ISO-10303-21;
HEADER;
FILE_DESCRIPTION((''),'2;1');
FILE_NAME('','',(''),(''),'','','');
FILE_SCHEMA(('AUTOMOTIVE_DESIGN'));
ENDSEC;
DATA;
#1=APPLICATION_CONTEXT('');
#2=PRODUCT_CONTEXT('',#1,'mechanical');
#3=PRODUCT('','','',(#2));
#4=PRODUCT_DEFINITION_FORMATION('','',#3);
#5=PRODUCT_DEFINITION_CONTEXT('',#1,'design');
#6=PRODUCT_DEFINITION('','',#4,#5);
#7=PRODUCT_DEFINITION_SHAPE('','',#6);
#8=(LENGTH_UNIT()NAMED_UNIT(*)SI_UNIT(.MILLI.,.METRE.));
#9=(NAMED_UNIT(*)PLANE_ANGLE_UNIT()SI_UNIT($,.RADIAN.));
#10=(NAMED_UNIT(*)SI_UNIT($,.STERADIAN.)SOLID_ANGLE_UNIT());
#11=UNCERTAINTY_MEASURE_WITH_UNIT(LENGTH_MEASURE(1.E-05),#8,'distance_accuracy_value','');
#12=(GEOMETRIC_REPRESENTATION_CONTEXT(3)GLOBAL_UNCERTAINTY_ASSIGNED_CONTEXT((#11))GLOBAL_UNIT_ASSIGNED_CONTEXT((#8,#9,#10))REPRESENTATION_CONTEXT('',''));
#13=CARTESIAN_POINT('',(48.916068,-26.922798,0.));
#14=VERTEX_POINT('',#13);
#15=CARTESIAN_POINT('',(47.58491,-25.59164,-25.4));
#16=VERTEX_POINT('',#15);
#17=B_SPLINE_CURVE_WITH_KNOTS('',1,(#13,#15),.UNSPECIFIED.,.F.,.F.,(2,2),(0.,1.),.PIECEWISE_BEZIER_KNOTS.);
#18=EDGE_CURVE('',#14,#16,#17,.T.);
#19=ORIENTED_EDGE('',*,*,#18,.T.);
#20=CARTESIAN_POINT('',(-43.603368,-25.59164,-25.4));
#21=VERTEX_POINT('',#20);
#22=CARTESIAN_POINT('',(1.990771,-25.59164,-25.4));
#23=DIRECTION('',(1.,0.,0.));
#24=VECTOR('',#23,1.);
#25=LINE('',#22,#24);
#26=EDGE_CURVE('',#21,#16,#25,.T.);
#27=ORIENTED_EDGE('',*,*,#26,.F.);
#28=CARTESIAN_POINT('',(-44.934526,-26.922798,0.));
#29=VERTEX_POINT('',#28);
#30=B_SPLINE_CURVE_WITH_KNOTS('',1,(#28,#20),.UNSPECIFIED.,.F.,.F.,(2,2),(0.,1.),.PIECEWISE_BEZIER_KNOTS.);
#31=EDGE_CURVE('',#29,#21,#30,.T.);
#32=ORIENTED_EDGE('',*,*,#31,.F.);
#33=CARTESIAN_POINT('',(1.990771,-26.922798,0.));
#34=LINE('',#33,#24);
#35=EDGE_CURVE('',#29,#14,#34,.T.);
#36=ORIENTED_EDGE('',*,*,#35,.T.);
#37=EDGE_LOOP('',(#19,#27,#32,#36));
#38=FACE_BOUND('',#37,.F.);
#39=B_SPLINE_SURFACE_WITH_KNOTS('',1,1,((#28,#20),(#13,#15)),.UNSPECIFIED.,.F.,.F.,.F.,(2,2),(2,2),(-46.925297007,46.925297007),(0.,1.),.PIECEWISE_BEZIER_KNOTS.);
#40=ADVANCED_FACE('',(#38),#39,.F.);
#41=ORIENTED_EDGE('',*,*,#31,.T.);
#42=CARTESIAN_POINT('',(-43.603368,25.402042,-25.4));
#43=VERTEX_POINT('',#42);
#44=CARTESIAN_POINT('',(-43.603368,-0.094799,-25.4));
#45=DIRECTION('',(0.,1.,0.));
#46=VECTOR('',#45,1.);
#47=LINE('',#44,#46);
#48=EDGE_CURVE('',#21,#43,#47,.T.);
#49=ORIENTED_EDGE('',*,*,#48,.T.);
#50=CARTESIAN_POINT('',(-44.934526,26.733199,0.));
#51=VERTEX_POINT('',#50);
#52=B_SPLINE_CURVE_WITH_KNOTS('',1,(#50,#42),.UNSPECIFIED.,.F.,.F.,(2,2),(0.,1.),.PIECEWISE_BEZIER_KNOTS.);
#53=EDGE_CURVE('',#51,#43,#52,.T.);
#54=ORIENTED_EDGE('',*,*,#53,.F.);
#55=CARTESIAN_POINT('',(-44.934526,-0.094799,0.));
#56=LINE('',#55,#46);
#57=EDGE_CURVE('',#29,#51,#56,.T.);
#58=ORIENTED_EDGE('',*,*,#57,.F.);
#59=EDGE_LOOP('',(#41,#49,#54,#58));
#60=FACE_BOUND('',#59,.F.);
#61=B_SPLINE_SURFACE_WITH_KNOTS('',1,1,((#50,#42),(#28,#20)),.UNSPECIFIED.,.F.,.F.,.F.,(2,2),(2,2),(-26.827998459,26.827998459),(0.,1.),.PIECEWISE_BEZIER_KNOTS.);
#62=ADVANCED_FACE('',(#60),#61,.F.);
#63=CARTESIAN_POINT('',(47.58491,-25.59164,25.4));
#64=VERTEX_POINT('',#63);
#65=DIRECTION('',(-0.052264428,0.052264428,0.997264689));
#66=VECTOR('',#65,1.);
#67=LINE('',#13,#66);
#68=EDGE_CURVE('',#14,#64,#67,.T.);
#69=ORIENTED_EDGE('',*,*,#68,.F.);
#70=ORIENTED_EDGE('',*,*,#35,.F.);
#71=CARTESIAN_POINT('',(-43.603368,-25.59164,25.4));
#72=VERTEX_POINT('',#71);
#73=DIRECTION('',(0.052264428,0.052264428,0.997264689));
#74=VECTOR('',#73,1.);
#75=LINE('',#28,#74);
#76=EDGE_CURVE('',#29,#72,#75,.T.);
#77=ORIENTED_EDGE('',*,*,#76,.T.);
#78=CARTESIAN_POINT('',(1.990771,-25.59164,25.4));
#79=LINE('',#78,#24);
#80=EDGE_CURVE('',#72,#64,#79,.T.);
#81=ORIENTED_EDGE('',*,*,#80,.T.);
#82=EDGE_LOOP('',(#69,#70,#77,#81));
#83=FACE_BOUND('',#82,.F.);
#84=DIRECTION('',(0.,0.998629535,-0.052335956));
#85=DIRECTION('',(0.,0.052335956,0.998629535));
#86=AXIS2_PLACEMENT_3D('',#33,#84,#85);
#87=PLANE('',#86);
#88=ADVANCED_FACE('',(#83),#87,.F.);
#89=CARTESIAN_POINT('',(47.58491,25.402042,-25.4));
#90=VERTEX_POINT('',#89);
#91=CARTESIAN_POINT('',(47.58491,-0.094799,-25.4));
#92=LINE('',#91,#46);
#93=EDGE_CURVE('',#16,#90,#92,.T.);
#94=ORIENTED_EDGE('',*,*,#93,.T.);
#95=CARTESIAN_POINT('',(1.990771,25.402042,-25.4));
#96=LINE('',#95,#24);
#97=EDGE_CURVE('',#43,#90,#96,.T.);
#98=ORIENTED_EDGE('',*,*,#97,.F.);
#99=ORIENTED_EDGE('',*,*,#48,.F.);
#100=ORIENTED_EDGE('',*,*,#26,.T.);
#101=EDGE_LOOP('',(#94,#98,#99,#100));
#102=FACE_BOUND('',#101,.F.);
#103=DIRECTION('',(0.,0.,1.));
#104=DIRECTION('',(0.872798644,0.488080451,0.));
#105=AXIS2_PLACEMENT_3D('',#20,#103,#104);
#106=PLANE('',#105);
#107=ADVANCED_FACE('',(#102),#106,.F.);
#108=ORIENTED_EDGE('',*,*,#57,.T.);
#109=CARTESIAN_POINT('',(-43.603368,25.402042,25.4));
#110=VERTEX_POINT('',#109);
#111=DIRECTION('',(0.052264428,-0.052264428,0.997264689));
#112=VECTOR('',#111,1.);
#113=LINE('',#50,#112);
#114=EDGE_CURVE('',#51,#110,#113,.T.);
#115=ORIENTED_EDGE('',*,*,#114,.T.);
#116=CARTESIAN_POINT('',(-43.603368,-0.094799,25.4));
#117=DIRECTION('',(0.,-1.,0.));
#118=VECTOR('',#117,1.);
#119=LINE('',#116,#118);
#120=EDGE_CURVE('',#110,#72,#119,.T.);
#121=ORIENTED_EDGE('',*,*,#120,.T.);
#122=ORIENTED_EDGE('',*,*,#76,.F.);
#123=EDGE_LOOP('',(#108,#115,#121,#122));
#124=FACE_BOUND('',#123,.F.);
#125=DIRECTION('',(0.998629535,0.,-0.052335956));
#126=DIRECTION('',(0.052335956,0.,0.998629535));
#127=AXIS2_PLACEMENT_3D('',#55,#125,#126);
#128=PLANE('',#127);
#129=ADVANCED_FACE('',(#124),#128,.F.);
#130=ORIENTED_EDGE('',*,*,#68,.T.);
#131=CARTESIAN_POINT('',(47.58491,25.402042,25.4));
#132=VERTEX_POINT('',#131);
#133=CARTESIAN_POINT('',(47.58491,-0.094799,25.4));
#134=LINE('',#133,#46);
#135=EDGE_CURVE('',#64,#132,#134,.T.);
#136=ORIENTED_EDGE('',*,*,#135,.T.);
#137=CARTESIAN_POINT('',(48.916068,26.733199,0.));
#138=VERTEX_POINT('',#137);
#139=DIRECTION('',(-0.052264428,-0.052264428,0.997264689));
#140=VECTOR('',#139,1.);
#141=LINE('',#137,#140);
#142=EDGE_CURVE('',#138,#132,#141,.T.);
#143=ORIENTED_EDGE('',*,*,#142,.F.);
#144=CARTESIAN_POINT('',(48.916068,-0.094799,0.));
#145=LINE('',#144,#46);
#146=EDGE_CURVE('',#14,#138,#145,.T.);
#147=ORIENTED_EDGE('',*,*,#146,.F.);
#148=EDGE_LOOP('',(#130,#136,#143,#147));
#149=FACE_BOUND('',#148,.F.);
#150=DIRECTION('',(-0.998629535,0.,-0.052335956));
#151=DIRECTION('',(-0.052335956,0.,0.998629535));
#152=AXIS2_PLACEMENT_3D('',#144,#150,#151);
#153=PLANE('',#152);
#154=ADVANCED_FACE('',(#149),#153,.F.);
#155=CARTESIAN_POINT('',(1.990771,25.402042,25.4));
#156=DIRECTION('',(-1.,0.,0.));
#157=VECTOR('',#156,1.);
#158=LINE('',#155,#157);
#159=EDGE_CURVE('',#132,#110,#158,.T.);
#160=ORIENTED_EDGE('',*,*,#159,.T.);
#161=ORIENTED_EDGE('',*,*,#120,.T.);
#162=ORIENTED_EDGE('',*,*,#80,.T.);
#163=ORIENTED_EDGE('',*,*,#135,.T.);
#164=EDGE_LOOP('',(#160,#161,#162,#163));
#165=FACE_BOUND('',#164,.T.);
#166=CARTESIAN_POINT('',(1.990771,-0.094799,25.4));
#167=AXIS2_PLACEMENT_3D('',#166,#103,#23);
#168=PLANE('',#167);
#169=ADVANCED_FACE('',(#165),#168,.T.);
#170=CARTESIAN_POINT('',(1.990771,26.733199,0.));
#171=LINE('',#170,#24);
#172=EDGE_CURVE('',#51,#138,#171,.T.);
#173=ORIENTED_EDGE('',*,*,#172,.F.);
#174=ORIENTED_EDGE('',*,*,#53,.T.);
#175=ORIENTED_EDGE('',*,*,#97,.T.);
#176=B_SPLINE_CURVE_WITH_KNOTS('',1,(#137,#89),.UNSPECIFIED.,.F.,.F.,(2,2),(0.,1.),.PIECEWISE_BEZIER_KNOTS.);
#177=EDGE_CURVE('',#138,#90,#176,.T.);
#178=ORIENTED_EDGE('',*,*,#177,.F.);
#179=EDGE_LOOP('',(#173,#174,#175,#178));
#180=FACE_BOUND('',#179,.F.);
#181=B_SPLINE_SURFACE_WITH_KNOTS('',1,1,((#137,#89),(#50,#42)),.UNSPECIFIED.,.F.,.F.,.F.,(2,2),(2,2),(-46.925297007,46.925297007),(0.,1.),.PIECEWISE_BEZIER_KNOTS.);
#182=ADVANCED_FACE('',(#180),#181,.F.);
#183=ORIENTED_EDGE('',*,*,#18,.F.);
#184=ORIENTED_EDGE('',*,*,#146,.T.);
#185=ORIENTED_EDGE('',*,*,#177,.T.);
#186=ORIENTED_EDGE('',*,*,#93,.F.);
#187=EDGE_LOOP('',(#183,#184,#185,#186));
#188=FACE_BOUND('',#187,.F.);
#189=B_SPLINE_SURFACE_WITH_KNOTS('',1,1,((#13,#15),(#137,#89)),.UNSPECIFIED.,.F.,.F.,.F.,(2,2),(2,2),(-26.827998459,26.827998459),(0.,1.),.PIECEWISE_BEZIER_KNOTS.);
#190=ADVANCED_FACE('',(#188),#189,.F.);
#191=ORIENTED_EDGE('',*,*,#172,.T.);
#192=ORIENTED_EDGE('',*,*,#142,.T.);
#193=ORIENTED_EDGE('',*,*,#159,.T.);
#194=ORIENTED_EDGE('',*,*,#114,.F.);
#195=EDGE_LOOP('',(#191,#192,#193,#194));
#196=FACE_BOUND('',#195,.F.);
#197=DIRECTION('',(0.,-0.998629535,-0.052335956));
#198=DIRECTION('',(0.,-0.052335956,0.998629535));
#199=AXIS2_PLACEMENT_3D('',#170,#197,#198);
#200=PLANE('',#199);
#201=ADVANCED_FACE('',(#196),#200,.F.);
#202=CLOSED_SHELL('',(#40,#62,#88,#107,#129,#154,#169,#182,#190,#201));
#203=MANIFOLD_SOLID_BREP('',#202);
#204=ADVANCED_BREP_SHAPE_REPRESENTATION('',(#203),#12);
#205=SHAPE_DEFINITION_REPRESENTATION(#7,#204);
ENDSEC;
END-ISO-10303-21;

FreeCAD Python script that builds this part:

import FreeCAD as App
import Part
import Sketcher
Q = App.Units.Quantity


def add_polygon(sketch, points):
    """Adds a closed chain of lines whose ends are joined by coincident constraints."""
    first, n = sketch.GeometryCount, len(points)
    for a, b in zip(points, points[1:] + points[:1]):
        sketch.addGeometry(Part.LineSegment(App.Vector(*a, 0), App.Vector(*b, 0)), False)
    for i in range(n):
        sketch.addConstraint(Sketcher.Constraint("Coincident", first + i, 2, first + (i + 1) % n, 1))

doc = App.newDocument("Part")
body = doc.addObject("PartDesign::Body", "Body")

# Sketch on XY plane
sketch1 = body.newObject("Sketcher::SketchObject", "Sketch")
sketch1.AttachmentSupport = (doc.getObject("XY_Plane"), [""])
sketch1.MapMode = "FlatFace"
add_polygon(sketch1, [(-45, 27), (-45, -27), (49, -27), (49, 27)])  # lines 0-3
sketch1.addConstraint(Sketcher.Constraint("Vertical", 0))
sketch1.addConstraint(Sketcher.Constraint("Horizontal", 1))
sketch1.addConstraint(Sketcher.Constraint("Vertical", 2))
sketch1.addConstraint(Sketcher.Constraint("Horizontal", 3))
sketch1.addConstraint(Sketcher.Constraint("DistanceY", -1, 1, 2, 2, Q("26.733199 mm")))
sketch1.addConstraint(Sketcher.Constraint("DistanceX", 1, 1, 1, 2, Q("93.850594 mm")))
sketch1.addConstraint(Sketcher.Constraint("DistanceY", 0, 2, 0, 1, Q("53.655997 mm")))
sketch1.addConstraint(Sketcher.Constraint("DistanceX", 0, 2, -1, 1, Q("44.934526 mm")))
pad1 = body.newObject("PartDesign::Pad", "Pad")
pad1.Profile = sketch1
pad1.Length = Q("1 in")
pad1.TaperAngle = -3
pad2 = body.newObject("PartDesign::Pad", "Pad001")
pad2.Profile = sketch1
pad2.Length = Q("1 in")
pad2.Reversed = True
pad2.TaperAngle = -3

doc.recompute()
